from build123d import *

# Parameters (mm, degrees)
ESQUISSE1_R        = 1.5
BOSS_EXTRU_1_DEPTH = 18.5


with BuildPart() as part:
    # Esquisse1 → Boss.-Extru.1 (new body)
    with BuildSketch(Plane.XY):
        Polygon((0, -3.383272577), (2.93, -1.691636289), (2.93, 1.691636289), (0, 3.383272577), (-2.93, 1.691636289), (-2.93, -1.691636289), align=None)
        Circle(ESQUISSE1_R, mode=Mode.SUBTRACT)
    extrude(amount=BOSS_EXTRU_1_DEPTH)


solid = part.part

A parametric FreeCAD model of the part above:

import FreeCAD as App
import Part
import Sketcher
from FreeCAD import Vector
Q = App.Units.Quantity

doc = App.newDocument("Part")
body = doc.addObject("PartDesign::Body", "Body")

# Sketch on XY plane
sketch1 = body.newObject("Sketcher::SketchObject", "Sketch")
sketch1.AttachmentSupport = (doc.getObject("XY_Plane"), [""])
sketch1.MapMode = "FlatFace"
sketch1.addGeometry(Part.LineSegment(Vector(0, -3.4, 0), Vector(2.9, -1.7, 0)), False)
sketch1.addGeometry(Part.LineSegment(Vector(2.9, -1.7, 0), Vector(2.9, 1.7, 0)), False)
sketch1.addGeometry(Part.LineSegment(Vector(2.9, 1.7, 0), Vector(0, 3.4, 0)), False)
sketch1.addGeometry(Part.LineSegment(Vector(0, 3.4, 0), Vector(-2.9, 1.7, 0)), False)
sketch1.addGeometry(Part.LineSegment(Vector(-2.9, 1.7, 0), Vector(-2.9, -1.7, 0)), False)
sketch1.addGeometry(Part.LineSegment(Vector(-2.9, -1.7, 0), Vector(0, -3.4, 0)), False)
sketch1.addGeometry(Part.Circle(Vector(0, 0, 0), Vector(0, 0, 1), 1.5), False)
sketch1.addConstraint(Sketcher.Constraint("Coincident", 0, 2, 1, 1))
sketch1.addConstraint(Sketcher.Constraint("Coincident", 1, 2, 2, 1))
sketch1.addConstraint(Sketcher.Constraint("Coincident", 2, 2, 3, 1))
sketch1.addConstraint(Sketcher.Constraint("Coincident", 3, 2, 4, 1))
sketch1.addConstraint(Sketcher.Constraint("Coincident", 4, 2, 5, 1))
sketch1.addConstraint(Sketcher.Constraint("Coincident", 5, 2, 0, 1))
sketch1.addConstraint(Sketcher.Constraint("Vertical", 1))
sketch1.addConstraint(Sketcher.Constraint("Vertical", 4))
sketch1.addConstraint(Sketcher.Constraint("Coincident", 6, 3, -1, 1))
sketch1.addConstraint(Sketcher.Constraint("Symmetric", 0, 2, 3, 2, -1, 1))
sketch1.addConstraint(Sketcher.Constraint("Symmetric", 2, 2, 5, 2, -1, 1))
sketch1.addConstraint(Sketcher.Constraint("PointOnObject", 2, 2, -2))
sketch1.addConstraint(Sketcher.Constraint("Parallel", 2, 5))
sketch1.addConstraint(Sketcher.Constraint("Horizontal", 1, 2, 3, 2))
sketch1.addConstraint(Sketcher.Constraint("Diameter", 6, Q("3 mm")))
sketch1.addConstraint(Sketcher.Constraint("Angle", 0, Q("30 deg")))
sketch1.addConstraint(Sketcher.Constraint("DistanceX", -1, 1, 0, 2, Q("2.93 mm")))
sketch1.addConstraint(Sketcher.Constraint("DistanceY", 1, 1, 1, 2, Q("3.383273 mm")))
pad1 = body.newObject("PartDesign::Pad", "Pad")
pad1.Profile = sketch1
pad1.Length = 18.5

doc.recompute()
